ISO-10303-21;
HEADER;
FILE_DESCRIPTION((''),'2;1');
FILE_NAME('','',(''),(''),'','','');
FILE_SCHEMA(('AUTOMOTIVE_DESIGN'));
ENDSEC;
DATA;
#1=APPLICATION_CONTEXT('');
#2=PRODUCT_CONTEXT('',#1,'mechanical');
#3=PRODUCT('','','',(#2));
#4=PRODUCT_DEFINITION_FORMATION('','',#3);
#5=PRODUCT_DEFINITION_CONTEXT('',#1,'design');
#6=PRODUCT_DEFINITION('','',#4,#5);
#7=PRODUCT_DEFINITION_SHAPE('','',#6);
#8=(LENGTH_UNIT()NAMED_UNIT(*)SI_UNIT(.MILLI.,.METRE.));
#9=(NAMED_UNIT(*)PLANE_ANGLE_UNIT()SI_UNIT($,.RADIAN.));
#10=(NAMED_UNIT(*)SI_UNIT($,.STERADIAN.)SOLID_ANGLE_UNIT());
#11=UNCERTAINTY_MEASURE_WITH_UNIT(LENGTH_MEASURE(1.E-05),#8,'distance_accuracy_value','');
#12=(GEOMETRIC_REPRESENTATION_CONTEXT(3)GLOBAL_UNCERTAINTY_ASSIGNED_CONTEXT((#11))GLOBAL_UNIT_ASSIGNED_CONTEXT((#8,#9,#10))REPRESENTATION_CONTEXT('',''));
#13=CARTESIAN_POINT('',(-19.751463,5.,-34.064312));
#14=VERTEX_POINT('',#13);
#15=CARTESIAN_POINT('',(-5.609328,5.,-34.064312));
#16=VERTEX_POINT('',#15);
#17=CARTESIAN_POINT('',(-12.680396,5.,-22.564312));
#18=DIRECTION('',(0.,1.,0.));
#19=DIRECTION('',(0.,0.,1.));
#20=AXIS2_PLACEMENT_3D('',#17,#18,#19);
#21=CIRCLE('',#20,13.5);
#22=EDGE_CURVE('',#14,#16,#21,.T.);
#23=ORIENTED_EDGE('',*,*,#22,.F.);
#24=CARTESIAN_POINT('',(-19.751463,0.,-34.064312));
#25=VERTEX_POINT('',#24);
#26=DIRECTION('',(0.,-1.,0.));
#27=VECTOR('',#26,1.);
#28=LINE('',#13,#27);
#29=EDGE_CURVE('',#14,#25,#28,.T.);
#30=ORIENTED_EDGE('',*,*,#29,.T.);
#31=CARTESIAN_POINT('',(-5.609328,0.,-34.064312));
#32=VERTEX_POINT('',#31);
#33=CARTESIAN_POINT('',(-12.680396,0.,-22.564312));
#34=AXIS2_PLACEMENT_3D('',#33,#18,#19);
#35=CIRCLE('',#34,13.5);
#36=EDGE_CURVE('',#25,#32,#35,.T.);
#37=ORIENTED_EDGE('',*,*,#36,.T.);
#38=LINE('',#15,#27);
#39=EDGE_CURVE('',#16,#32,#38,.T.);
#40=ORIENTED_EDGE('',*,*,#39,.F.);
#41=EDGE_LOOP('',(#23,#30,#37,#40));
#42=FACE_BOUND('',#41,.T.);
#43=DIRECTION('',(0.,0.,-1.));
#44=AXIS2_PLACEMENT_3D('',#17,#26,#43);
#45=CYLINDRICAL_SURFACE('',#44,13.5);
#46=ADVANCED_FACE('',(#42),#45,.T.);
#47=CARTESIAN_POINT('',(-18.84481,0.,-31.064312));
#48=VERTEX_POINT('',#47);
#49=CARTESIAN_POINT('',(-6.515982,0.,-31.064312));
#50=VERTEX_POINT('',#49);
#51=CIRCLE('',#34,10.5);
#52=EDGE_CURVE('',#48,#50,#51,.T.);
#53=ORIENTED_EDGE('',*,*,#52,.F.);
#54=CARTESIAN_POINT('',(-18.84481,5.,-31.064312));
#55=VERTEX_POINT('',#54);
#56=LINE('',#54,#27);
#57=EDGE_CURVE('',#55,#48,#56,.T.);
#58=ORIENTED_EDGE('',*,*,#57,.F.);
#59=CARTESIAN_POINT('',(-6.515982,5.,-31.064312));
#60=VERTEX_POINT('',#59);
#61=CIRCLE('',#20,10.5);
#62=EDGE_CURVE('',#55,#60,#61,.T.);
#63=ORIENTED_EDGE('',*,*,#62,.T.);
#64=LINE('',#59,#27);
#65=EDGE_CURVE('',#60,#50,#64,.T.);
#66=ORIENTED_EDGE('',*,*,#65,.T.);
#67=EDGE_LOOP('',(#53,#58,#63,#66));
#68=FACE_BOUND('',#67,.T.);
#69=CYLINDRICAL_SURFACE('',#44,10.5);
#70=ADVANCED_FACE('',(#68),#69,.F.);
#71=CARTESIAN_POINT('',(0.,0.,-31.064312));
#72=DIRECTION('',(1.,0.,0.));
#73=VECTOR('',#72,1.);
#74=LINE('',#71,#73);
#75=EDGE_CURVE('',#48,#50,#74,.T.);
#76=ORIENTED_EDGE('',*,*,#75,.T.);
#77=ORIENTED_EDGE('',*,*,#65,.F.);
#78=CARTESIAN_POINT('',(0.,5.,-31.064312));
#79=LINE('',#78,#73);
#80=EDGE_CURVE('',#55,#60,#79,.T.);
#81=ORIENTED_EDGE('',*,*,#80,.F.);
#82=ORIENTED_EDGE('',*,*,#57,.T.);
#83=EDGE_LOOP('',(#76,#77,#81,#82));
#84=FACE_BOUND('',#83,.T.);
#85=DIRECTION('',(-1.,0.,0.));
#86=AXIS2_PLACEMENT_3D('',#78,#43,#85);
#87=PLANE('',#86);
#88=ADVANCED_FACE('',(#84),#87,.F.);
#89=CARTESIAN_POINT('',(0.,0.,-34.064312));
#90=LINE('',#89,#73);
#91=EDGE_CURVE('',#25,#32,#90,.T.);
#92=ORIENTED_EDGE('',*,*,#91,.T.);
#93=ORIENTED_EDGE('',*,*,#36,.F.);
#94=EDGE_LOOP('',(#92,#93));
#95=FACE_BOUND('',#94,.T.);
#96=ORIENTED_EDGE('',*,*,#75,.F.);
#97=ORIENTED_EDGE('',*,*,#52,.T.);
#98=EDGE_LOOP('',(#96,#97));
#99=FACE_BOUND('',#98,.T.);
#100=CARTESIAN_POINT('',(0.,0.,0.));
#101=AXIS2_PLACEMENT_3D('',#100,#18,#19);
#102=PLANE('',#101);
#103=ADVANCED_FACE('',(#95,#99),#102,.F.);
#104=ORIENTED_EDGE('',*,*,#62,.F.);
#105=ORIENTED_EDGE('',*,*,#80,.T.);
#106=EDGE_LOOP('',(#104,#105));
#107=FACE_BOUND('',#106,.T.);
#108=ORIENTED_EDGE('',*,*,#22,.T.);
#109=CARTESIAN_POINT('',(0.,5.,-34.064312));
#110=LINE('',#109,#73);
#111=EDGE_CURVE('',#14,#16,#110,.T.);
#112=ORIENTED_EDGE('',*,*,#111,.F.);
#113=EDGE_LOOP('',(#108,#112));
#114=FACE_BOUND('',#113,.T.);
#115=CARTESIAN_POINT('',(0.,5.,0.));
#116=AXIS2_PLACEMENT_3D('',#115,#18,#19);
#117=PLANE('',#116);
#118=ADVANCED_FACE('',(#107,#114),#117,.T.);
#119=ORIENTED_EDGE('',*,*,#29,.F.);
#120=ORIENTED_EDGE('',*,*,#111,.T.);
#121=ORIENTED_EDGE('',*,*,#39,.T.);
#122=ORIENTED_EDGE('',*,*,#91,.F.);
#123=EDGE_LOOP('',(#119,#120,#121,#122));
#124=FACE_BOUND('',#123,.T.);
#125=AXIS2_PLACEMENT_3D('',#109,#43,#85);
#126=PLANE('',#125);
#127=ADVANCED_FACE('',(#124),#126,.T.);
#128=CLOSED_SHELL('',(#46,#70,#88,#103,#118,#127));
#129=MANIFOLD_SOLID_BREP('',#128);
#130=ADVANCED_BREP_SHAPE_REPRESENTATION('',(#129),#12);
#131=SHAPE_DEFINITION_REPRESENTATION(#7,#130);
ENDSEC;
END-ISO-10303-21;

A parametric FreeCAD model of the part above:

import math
import FreeCAD as App
import Part
import Sketcher
Q = App.Units.Quantity

doc = App.newDocument("Part")
body = doc.addObject("PartDesign::Body", "Body")

sketch1 = body.newObject("Sketcher::SketchObject", "Sketch")
sketch1.AttachmentSupport = (doc.getObject("XZ_Plane"), [""])
sketch1.MapMode = "FlatFace"
sketch1.addGeometry([
    Part.ArcOfCircle(Part.Circle(App.Vector(-12.680396, -22.564312, 0), App.Vector(0, 0, 1), 13.5), math.radians(51.057559), math.radians(238.413662)),
    Part.ArcOfCircle(Part.Circle(App.Vector(-12.680396, -22.564312, 0), App.Vector(0, 0, 1), 13.5), math.radians(-58.413662), math.radians(51.057559)),
    Part.LineSegment(App.Vector(-5.609328, -34.064312, 0), App.Vector(-19.751463, -34.064312, 0)),
    Part.ArcOfCircle(Part.Circle(App.Vector(-12.680396, -22.564312, 0), App.Vector(0, 0, 1), 10.5), math.radians(90), math.radians(234.049432)),
    Part.LineSegment(App.Vector(-18.84481, -31.064312, 0), App.Vector(-6.515982, -31.064312, 0)),
    Part.ArcOfCircle(Part.Circle(App.Vector(-12.680396, -22.564312, 0), App.Vector(0, 0, 1), 10.5), math.radians(-54.049432), math.radians(90)),
], False)
sketch1.addConstraint([
    Sketcher.Constraint("Tangent", 0, 1, 1, 2),
    Sketcher.Constraint("Coincident", 1, 1, 2, 1),
    Sketcher.Constraint("Coincident", 2, 2, 0, 2),
    Sketcher.Constraint("Coincident", 3, 2, 4, 1),
    Sketcher.Constraint("Coincident", 4, 2, 5, 1),
    Sketcher.Constraint("Tangent", 5, 2, 3, 1),
    Sketcher.Constraint("Horizontal", 2),
    Sketcher.Constraint("Horizontal", 4),
    Sketcher.Constraint("Coincident", 3, 3, 0, 3),
    Sketcher.Constraint("Equal", 0, 1),
    Sketcher.Constraint("Equal", 3, 5),
    Sketcher.Constraint("Horizontal", 0, 1, 5, 2),
    Sketcher.Constraint("Vertical", 3, 3, 5, 2),
    Sketcher.Constraint("Radius", 0, Q("13.5 mm")),
    Sketcher.Constraint("Radius", 3, Q("10.5 mm")),
    Sketcher.Constraint("DistanceY", 1, 1, 0, 1, Q("22 mm")),
    Sketcher.Constraint("DistanceY", 2, 2, 3, 2, Q("3 mm")),
    Sketcher.Constraint("DistanceX", 3, 2, -1, 1, Q("18.84481 mm")),
    Sketcher.Constraint("DistanceY", 0, 3, -1, 1, Q("22.564312 mm")),
])
pad1 = body.newObject("PartDesign::Pad", "Pad")
pad1.Profile = sketch1
pad1.Length = 5
pad1.Reversed = True

doc.recompute()
